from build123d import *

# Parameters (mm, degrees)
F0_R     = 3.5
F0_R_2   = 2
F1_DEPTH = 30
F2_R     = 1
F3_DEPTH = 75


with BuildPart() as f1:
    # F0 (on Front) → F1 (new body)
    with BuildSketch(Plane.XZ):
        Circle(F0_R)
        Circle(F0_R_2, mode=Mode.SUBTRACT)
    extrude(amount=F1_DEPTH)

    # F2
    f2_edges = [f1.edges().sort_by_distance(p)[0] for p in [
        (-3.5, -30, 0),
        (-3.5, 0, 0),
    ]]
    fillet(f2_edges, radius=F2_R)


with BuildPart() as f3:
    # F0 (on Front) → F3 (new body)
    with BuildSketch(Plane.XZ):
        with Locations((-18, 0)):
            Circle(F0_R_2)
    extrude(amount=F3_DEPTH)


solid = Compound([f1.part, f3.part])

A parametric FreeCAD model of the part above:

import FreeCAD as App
import Part
import Sketcher
Q = App.Units.Quantity


def edges_at(feature, points):
    """Names of the edges that pass closest to the given points."""
    edges = feature.Shape.Edges
    near = lambda p: min(range(len(edges)), key=lambda i: edges[i].distToShape(Part.Vertex(*p))[0])
    return sorted({f"Edge{near(p) + 1}" for p in points})

doc = App.newDocument("Part")
body = doc.addObject("PartDesign::Body", "Body")

# Sketch on XZ plane
sketch1 = body.newObject("Sketcher::SketchObject", "Sketch")
sketch1.AttachmentSupport = (doc.getObject("XZ_Plane"), [""])
sketch1.MapMode = "FlatFace"
sketch1.addGeometry([
    Part.Circle(App.Vector(0, 0, 0), App.Vector(0, 0, 1), 3.5),
    Part.Circle(App.Vector(0, 0, 0), App.Vector(0, 0, 1), 2),
], False)
sketch1.addConstraint([
    Sketcher.Constraint("Coincident", 0, 3, -1, 1),
    Sketcher.Constraint("Coincident", 1, 3, -1, 1),
    Sketcher.Constraint("Diameter", 0, Q("7 mm")),
    Sketcher.Constraint("Diameter", 1, Q("4 mm")),
])
pad1 = body.newObject("PartDesign::Pad", "Pad")
pad1.Profile = sketch1
pad1.Length = 30
doc.recompute()

fillet = body.newObject("PartDesign::Fillet", "Fillet")
fillet.Base = (pad1, edges_at(pad1, [(-3.5, -30, 0), (-3.5, 0, 0)]))
fillet.Radius = 1
body2 = doc.addObject("PartDesign::Body", "Body001")

# Sketch on XZ plane
sketch2 = body2.newObject("Sketcher::SketchObject", "Sketch001")
sketch2.AttachmentSupport = (doc.getObject("XZ_Plane001"), [""])
sketch2.MapMode = "FlatFace"
sketch2.addGeometry(Part.Circle(App.Vector(-18, 0, 0), App.Vector(0, 0, 1), 2), False)
sketch2.addConstraint([
    Sketcher.Constraint("PointOnObject", 0, 3, -1),
    Sketcher.Constraint("Diameter", 0, Q("4 mm")),
    Sketcher.Constraint("DistanceX", 0, 3, -1, 1, Q("18 mm")),
])
pad2 = body2.newObject("PartDesign::Pad", "Pad001")
pad2.Profile = sketch2
pad2.Length = 75

doc.recompute()
